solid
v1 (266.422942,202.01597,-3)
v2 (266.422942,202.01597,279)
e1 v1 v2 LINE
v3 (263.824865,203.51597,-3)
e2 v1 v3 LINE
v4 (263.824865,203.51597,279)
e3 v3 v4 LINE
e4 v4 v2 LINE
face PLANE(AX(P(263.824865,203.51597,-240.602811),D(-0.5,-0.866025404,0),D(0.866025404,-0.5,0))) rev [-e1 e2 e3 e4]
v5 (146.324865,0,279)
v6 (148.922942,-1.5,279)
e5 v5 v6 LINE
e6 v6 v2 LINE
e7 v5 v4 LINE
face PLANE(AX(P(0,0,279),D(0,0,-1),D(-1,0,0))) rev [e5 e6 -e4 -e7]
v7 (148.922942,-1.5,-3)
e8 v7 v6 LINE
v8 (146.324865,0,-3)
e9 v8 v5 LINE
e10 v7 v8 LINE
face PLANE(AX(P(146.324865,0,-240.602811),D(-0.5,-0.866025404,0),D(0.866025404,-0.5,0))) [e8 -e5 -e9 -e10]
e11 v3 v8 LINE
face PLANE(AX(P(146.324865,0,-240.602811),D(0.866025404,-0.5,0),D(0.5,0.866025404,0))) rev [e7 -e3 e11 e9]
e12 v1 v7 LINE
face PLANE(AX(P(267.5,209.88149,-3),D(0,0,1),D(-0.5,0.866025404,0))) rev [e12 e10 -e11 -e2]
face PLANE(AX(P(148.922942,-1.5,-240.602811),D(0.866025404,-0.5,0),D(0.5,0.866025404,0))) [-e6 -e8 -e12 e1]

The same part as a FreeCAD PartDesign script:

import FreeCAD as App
import Part
import Sketcher
from FreeCAD import Vector
Q = App.Units.Quantity


def add_polygon(sketch, points):
    """Adds a closed chain of lines whose ends are joined by coincident constraints."""
    first, n = sketch.GeometryCount, len(points)
    for a, b in zip(points, points[1:] + points[:1]):
        sketch.addGeometry(Part.LineSegment(App.Vector(*a, 0), App.Vector(*b, 0)), False)
    for i in range(n):
        sketch.addConstraint(Sketcher.Constraint("Coincident", first + i, 2, first + (i + 1) % n, 1))

doc = App.newDocument("Part")
body = doc.addObject("PartDesign::Body", "Body")

# Sketch on XY plane
sketch1 = body.newObject("Sketcher::SketchObject", "Sketch")
sketch1.AttachmentSupport = (doc.getObject("XY_Plane"), [""])
sketch1.MapMode = "FlatFace"
sketch1.AttachmentOffset = App.Placement(Vector(0, 0, 279), App.Rotation())
add_polygon(sketch1, [(263.8, 203.5), (146.3, 0), (148.9, -1.5), (266.4, 202)])  # lines 0-3
sketch1.addConstraint(Sketcher.Constraint("PointOnObject", 0, 2, -1))
sketch1.addConstraint(Sketcher.Constraint("Perpendicular", 0, 1))
sketch1.addConstraint(Sketcher.Constraint("Perpendicular", 1, 2))
sketch1.addConstraint(Sketcher.Constraint("Perpendicular", 2, 3))
sketch1.addConstraint(Sketcher.Constraint("Angle", 0, Q("-120 deg")))
sketch1.addConstraint(Sketcher.Constraint("Distance", 0, Q("235 mm")))
sketch1.addConstraint(Sketcher.Constraint("Distance", 1, Q("3 mm")))
sketch1.addConstraint(Sketcher.Constraint("DistanceX", -1, 1, 1, 2, Q("148.922942 mm")))
pad1 = body.newObject("PartDesign::Pad", "Pad")
pad1.Profile = sketch1
pad1.Length = 282
pad1.Reversed = True

doc.recompute()
